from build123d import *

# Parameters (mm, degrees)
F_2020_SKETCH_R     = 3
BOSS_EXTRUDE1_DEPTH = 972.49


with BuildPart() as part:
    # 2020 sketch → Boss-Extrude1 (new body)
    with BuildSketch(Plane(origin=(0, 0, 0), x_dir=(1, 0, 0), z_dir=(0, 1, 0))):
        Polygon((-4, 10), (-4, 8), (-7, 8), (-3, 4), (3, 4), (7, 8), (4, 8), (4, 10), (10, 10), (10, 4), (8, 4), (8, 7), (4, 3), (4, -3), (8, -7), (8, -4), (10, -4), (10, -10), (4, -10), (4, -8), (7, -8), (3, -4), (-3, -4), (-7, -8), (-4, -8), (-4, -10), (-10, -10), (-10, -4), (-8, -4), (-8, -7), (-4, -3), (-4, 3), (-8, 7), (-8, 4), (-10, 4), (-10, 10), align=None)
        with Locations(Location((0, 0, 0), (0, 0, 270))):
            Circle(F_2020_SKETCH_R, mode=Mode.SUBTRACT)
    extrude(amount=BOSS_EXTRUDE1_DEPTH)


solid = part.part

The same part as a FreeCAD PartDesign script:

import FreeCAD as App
import Part
import Sketcher
from FreeCAD import Vector

doc = App.newDocument("Part")
body = doc.addObject("PartDesign::Body", "Body")

# Sketch on XZ plane
sketch1 = body.newObject("Sketcher::SketchObject", "Sketch")
sketch1.AttachmentSupport = (doc.getObject("XZ_Plane"), [""])
sketch1.MapMode = "FlatFace"
sketch1.addGeometry(Part.LineSegment(Vector(-4, -8, 0), Vector(-4, -10, 0)), False)
sketch1.addGeometry(Part.LineSegment(Vector(-4, -10, 0), Vector(-10, -10, 0)), False)
sketch1.addGeometry(Part.LineSegment(Vector(-10, -10, 0), Vector(-10, -4, 0)), False)
sketch1.addGeometry(Part.LineSegment(Vector(-10, -4, 0), Vector(-8, -4, 0)), False)
sketch1.addGeometry(Part.LineSegment(Vector(-8, -4, 0), Vector(-8, -7, 0)), False)
sketch1.addGeometry(Part.LineSegment(Vector(-8, -7, 0), Vector(-4, -3, 0)), False)
sketch1.addGeometry(Part.LineSegment(Vector(-4, -3, 0), Vector(-4, 3, 0)), False)
sketch1.addGeometry(Part.LineSegment(Vector(-4, 3, 0), Vector(-8, 7, 0)), False)
sketch1.addGeometry(Part.LineSegment(Vector(-8, 7, 0), Vector(-8, 4, 0)), False)
sketch1.addGeometry(Part.LineSegment(Vector(-8, 4, 0), Vector(-10, 4, 0)), False)
sketch1.addGeometry(Part.LineSegment(Vector(-10, 4, 0), Vector(-10, 10, 0)), False)
sketch1.addGeometry(Part.LineSegment(Vector(-10, 10, 0), Vector(-4, 10, 0)), False)
sketch1.addGeometry(Part.LineSegment(Vector(-4, 10, 0), Vector(-4, 8, 0)), False)
sketch1.addGeometry(Part.LineSegment(Vector(-4, 8, 0), Vector(-7, 8, 0)), False)
sketch1.addGeometry(Part.LineSegment(Vector(-7, 8, 0), Vector(-3, 4, 0)), False)
sketch1.addGeometry(Part.LineSegment(Vector(-3, 4, 0), Vector(3, 4, 0)), False)
sketch1.addGeometry(Part.LineSegment(Vector(3, 4, 0), Vector(7, 8, 0)), False)
sketch1.addGeometry(Part.LineSegment(Vector(7, 8, 0), Vector(4, 8, 0)), False)
sketch1.addGeometry(Part.LineSegment(Vector(4, 8, 0), Vector(4, 10, 0)), False)
sketch1.addGeometry(Part.LineSegment(Vector(4, 10, 0), Vector(10, 10, 0)), False)
sketch1.addGeometry(Part.LineSegment(Vector(10, 10, 0), Vector(10, 4, 0)), False)
sketch1.addGeometry(Part.LineSegment(Vector(10, 4, 0), Vector(8, 4, 0)), False)
sketch1.addGeometry(Part.LineSegment(Vector(8, 4, 0), Vector(8, 7, 0)), False)
sketch1.addGeometry(Part.LineSegment(Vector(8, 7, 0), Vector(4, 3, 0)), False)
sketch1.addGeometry(Part.LineSegment(Vector(4, 3, 0), Vector(4, -3, 0)), False)
sketch1.addGeometry(Part.LineSegment(Vector(4, -3, 0), Vector(8, -7, 0)), False)
sketch1.addGeometry(Part.LineSegment(Vector(8, -7, 0), Vector(8, -4, 0)), False)
sketch1.addGeometry(Part.LineSegment(Vector(8, -4, 0), Vector(10, -4, 0)), False)
sketch1.addGeometry(Part.LineSegment(Vector(10, -4, 0), Vector(10, -10, 0)), False)
sketch1.addGeometry(Part.LineSegment(Vector(10, -10, 0), Vector(4, -10, 0)), False)
sketch1.addGeometry(Part.LineSegment(Vector(4, -10, 0), Vector(4, -8, 0)), False)
sketch1.addGeometry(Part.LineSegment(Vector(4, -8, 0), Vector(7, -8, 0)), False)
sketch1.addGeometry(Part.LineSegment(Vector(7, -8, 0), Vector(3, -4, 0)), False)
sketch1.addGeometry(Part.LineSegment(Vector(3, -4, 0), Vector(-3, -4, 0)), False)
sketch1.addGeometry(Part.LineSegment(Vector(-3, -4, 0), Vector(-7, -8, 0)), False)
sketch1.addGeometry(Part.LineSegment(Vector(-7, -8, 0), Vector(-4, -8, 0)), False)
sketch1.addGeometry(Part.Circle(Vector(0, 0, 0), Vector(0, 0, 1), 3), False)
sketch1.addConstraint(Sketcher.Constraint("Coincident", 0, 2, 1, 1))
sketch1.addConstraint(Sketcher.Constraint("Coincident", 1, 2, 2, 1))
sketch1.addConstraint(Sketcher.Constraint("Coincident", 2, 2, 3, 1))
sketch1.addConstraint(Sketcher.Constraint("Coincident", 3, 2, 4, 1))
sketch1.addConstraint(Sketcher.Constraint("Coincident", 4, 2, 5, 1))
sketch1.addConstraint(Sketcher.Constraint("Coincident", 5, 2, 6, 1))
sketch1.addConstraint(Sketcher.Constraint("Coincident", 6, 2, 7, 1))
sketch1.addConstraint(Sketcher.Constraint("Coincident", 7, 2, 8, 1))
sketch1.addConstraint(Sketcher.Constraint("Coincident", 8, 2, 9, 1))
sketch1.addConstraint(Sketcher.Constraint("Coincident", 9, 2, 10, 1))
sketch1.addConstraint(Sketcher.Constraint("Coincident", 10, 2, 11, 1))
sketch1.addConstraint(Sketcher.Constraint("Coincident", 11, 2, 12, 1))
sketch1.addConstraint(Sketcher.Constraint("Coincident", 12, 2, 13, 1))
sketch1.addConstraint(Sketcher.Constraint("Coincident", 13, 2, 14, 1))
sketch1.addConstraint(Sketcher.Constraint("Coincident", 14, 2, 15, 1))
sketch1.addConstraint(Sketcher.Constraint("Coincident", 15, 2, 16, 1))
sketch1.addConstraint(Sketcher.Constraint("Coincident", 16, 2, 17, 1))
sketch1.addConstraint(Sketcher.Constraint("Coincident", 17, 2, 18, 1))
sketch1.addConstraint(Sketcher.Constraint("Coincident", 18, 2, 19, 1))
sketch1.addConstraint(Sketcher.Constraint("Coincident", 19, 2, 20, 1))
sketch1.addConstraint(Sketcher.Constraint("Coincident", 20, 2, 21, 1))
sketch1.addConstraint(Sketcher.Constraint("Coincident", 21, 2, 22, 1))
sketch1.addConstraint(Sketcher.Constraint("Coincident", 22, 2, 23, 1))
sketch1.addConstraint(Sketcher.Constraint("Coincident", 23, 2, 24, 1))
sketch1.addConstraint(Sketcher.Constraint("Coincident", 24, 2, 25, 1))
sketch1.addConstraint(Sketcher.Constraint("Coincident", 25, 2, 26, 1))
sketch1.addConstraint(Sketcher.Constraint("Coincident", 26, 2, 27, 1))
sketch1.addConstraint(Sketcher.Constraint("Coincident", 27, 2, 28, 1))
sketch1.addConstraint(Sketcher.Constraint("Coincident", 28, 2, 29, 1))
sketch1.addConstraint(Sketcher.Constraint("Coincident", 29, 2, 30, 1))
sketch1.addConstraint(Sketcher.Constraint("Coincident", 30, 2, 31, 1))
sketch1.addConstraint(Sketcher.Constraint("Coincident", 31, 2, 32, 1))
sketch1.addConstraint(Sketcher.Constraint("Coincident", 32, 2, 33, 1))
sketch1.addConstraint(Sketcher.Constraint("Coincident", 33, 2, 34, 1))
sketch1.addConstraint(Sketcher.Constraint("Coincident", 34, 2, 35, 1))
sketch1.addConstraint(Sketcher.Constraint("Coincident", 35, 2, 0, 1))
sketch1.addConstraint(Sketcher.Constraint("Vertical", 0))
sketch1.addConstraint(Sketcher.Constraint("Horizontal", 1))
sketch1.addConstraint(Sketcher.Constraint("Vertical", 2))
sketch1.addConstraint(Sketcher.Constraint("Horizontal", 3))
sketch1.addConstraint(Sketcher.Constraint("Vertical", 4))
sketch1.addConstraint(Sketcher.Constraint("Vertical", 6))
sketch1.addConstraint(Sketcher.Constraint("Vertical", 8))
sketch1.addConstraint(Sketcher.Constraint("Horizontal", 9))
sketch1.addConstraint(Sketcher.Constraint("Vertical", 10))
sketch1.addConstraint(Sketcher.Constraint("Horizontal", 11))
sketch1.addConstraint(Sketcher.Constraint("Vertical", 12))
sketch1.addConstraint(Sketcher.Constraint("Horizontal", 13))
sketch1.addConstraint(Sketcher.Constraint("Horizontal", 15))
sketch1.addConstraint(Sketcher.Constraint("Horizontal", 17))
sketch1.addConstraint(Sketcher.Constraint("Vertical", 18))
sketch1.addConstraint(Sketcher.Constraint("Horizontal", 19))
sketch1.addConstraint(Sketcher.Constraint("Vertical", 20))
sketch1.addConstraint(Sketcher.Constraint("Horizontal", 21))
sketch1.addConstraint(Sketcher.Constraint("Vertical", 22))
sketch1.addConstraint(Sketcher.Constraint("Vertical", 24))
sketch1.addConstraint(Sketcher.Constraint("Vertical", 26))
sketch1.addConstraint(Sketcher.Constraint("Horizontal", 27))
sketch1.addConstraint(Sketcher.Constraint("Vertical", 28))
sketch1.addConstraint(Sketcher.Constraint("Horizontal", 29))
sketch1.addConstraint(Sketcher.Constraint("Vertical", 30))
sketch1.addConstraint(Sketcher.Constraint("Horizontal", 31))
sketch1.addConstraint(Sketcher.Constraint("Horizontal", 33))
sketch1.addConstraint(Sketcher.Constraint("Horizontal", 35))
sketch1.addConstraint(Sketcher.Constraint("Coincident", 36, 3, -1, 1))
sketch1.addConstraint(Sketcher.Constraint("Symmetric", 0, 2, 18, 2, -1, 1))
sketch1.addConstraint(Sketcher.Constraint("Symmetric", 2, 2, 20, 2, -1, 1))
sketch1.addConstraint(Sketcher.Constraint("Symmetric", 4, 2, 22, 2, -1, 1))
sketch1.addConstraint(Sketcher.Constraint("Symmetric", 5, 2, 23, 2, -1, 1))
sketch1.addConstraint(Sketcher.Constraint("Symmetric", 7, 2, 25, 2, -1, 1))
sketch1.addConstraint(Sketcher.Constraint("Symmetric", 9, 2, 27, 2, -1, 1))
sketch1.addConstraint(Sketcher.Constraint("Symmetric", 11, 2, 29, 2, -1, 1))
sketch1.addConstraint(Sketcher.Constraint("Symmetric", 13, 2, 31, 2, -1, 1))
sketch1.addConstraint(Sketcher.Constraint("Symmetric", 14, 2, 32, 2, -1, 1))
sketch1.addConstraint(Sketcher.Constraint("Symmetric", 16, 2, 34, 2, -1, 1))
sketch1.addConstraint(Sketcher.Constraint("Symmetric", 13, 2, 16, 2, -2))
sketch1.addConstraint(Sketcher.Constraint("Symmetric", 11, 2, 18, 2, -2))
sketch1.addConstraint(Sketcher.Constraint("Symmetric", 9, 2, 20, 2, -2))
sketch1.addConstraint(Sketcher.Constraint("Symmetric", 7, 2, 22, 2, -2))
sketch1.addConstraint(Sketcher.Constraint("Perpendicular", 5, 7))
sketch1.addConstraint(Sketcher.Constraint("Parallel", 7, 14))
sketch1.addConstraint(Sketcher.Constraint("Perpendicular", 14, 16))
sketch1.addConstraint(Sketcher.Constraint("Perpendicular", 23, 25))
sketch1.addConstraint(Sketcher.Constraint("Perpendicular", 32, 34))
sketch1.addConstraint(Sketcher.Constraint("Horizontal", 9, 2, 14, 2))
sketch1.addConstraint(Sketcher.Constraint("Horizontal", 6, 2, 23, 2))
sketch1.addConstraint(Sketcher.Constraint("Vertical", 0, 2, 5, 2))
sketch1.addConstraint(Sketcher.Constraint("Equal", 11, 15))
sketch1.addConstraint(Sketcher.Constraint("Equal", 27, 0))
sketch1.addConstraint(Sketcher.Constraint("Equal", 33, 2))
sketch1.addConstraint(Sketcher.Constraint("Equal", 35, 4))
sketch1.addConstraint(Sketcher.Constraint("Equal", 2, 6))
sketch1.addConstraint(Sketcher.Constraint("Diameter", 36, 6.0))
sketch1.addConstraint(Sketcher.Constraint("DistanceX", 1, 2, 1, 1, 6.0))
sketch1.addConstraint(Sketcher.Constraint("DistanceX", 3, 1, 3, 2, 2.0))
sketch1.addConstraint(Sketcher.Constraint("DistanceX", 13, 2, 13, 1, 3.0))
pad1 = body.newObject("PartDesign::Pad", "Pad")
pad1.Profile = sketch1
pad1.Length = 972.49
pad1.Reversed = True

doc.recompute()
